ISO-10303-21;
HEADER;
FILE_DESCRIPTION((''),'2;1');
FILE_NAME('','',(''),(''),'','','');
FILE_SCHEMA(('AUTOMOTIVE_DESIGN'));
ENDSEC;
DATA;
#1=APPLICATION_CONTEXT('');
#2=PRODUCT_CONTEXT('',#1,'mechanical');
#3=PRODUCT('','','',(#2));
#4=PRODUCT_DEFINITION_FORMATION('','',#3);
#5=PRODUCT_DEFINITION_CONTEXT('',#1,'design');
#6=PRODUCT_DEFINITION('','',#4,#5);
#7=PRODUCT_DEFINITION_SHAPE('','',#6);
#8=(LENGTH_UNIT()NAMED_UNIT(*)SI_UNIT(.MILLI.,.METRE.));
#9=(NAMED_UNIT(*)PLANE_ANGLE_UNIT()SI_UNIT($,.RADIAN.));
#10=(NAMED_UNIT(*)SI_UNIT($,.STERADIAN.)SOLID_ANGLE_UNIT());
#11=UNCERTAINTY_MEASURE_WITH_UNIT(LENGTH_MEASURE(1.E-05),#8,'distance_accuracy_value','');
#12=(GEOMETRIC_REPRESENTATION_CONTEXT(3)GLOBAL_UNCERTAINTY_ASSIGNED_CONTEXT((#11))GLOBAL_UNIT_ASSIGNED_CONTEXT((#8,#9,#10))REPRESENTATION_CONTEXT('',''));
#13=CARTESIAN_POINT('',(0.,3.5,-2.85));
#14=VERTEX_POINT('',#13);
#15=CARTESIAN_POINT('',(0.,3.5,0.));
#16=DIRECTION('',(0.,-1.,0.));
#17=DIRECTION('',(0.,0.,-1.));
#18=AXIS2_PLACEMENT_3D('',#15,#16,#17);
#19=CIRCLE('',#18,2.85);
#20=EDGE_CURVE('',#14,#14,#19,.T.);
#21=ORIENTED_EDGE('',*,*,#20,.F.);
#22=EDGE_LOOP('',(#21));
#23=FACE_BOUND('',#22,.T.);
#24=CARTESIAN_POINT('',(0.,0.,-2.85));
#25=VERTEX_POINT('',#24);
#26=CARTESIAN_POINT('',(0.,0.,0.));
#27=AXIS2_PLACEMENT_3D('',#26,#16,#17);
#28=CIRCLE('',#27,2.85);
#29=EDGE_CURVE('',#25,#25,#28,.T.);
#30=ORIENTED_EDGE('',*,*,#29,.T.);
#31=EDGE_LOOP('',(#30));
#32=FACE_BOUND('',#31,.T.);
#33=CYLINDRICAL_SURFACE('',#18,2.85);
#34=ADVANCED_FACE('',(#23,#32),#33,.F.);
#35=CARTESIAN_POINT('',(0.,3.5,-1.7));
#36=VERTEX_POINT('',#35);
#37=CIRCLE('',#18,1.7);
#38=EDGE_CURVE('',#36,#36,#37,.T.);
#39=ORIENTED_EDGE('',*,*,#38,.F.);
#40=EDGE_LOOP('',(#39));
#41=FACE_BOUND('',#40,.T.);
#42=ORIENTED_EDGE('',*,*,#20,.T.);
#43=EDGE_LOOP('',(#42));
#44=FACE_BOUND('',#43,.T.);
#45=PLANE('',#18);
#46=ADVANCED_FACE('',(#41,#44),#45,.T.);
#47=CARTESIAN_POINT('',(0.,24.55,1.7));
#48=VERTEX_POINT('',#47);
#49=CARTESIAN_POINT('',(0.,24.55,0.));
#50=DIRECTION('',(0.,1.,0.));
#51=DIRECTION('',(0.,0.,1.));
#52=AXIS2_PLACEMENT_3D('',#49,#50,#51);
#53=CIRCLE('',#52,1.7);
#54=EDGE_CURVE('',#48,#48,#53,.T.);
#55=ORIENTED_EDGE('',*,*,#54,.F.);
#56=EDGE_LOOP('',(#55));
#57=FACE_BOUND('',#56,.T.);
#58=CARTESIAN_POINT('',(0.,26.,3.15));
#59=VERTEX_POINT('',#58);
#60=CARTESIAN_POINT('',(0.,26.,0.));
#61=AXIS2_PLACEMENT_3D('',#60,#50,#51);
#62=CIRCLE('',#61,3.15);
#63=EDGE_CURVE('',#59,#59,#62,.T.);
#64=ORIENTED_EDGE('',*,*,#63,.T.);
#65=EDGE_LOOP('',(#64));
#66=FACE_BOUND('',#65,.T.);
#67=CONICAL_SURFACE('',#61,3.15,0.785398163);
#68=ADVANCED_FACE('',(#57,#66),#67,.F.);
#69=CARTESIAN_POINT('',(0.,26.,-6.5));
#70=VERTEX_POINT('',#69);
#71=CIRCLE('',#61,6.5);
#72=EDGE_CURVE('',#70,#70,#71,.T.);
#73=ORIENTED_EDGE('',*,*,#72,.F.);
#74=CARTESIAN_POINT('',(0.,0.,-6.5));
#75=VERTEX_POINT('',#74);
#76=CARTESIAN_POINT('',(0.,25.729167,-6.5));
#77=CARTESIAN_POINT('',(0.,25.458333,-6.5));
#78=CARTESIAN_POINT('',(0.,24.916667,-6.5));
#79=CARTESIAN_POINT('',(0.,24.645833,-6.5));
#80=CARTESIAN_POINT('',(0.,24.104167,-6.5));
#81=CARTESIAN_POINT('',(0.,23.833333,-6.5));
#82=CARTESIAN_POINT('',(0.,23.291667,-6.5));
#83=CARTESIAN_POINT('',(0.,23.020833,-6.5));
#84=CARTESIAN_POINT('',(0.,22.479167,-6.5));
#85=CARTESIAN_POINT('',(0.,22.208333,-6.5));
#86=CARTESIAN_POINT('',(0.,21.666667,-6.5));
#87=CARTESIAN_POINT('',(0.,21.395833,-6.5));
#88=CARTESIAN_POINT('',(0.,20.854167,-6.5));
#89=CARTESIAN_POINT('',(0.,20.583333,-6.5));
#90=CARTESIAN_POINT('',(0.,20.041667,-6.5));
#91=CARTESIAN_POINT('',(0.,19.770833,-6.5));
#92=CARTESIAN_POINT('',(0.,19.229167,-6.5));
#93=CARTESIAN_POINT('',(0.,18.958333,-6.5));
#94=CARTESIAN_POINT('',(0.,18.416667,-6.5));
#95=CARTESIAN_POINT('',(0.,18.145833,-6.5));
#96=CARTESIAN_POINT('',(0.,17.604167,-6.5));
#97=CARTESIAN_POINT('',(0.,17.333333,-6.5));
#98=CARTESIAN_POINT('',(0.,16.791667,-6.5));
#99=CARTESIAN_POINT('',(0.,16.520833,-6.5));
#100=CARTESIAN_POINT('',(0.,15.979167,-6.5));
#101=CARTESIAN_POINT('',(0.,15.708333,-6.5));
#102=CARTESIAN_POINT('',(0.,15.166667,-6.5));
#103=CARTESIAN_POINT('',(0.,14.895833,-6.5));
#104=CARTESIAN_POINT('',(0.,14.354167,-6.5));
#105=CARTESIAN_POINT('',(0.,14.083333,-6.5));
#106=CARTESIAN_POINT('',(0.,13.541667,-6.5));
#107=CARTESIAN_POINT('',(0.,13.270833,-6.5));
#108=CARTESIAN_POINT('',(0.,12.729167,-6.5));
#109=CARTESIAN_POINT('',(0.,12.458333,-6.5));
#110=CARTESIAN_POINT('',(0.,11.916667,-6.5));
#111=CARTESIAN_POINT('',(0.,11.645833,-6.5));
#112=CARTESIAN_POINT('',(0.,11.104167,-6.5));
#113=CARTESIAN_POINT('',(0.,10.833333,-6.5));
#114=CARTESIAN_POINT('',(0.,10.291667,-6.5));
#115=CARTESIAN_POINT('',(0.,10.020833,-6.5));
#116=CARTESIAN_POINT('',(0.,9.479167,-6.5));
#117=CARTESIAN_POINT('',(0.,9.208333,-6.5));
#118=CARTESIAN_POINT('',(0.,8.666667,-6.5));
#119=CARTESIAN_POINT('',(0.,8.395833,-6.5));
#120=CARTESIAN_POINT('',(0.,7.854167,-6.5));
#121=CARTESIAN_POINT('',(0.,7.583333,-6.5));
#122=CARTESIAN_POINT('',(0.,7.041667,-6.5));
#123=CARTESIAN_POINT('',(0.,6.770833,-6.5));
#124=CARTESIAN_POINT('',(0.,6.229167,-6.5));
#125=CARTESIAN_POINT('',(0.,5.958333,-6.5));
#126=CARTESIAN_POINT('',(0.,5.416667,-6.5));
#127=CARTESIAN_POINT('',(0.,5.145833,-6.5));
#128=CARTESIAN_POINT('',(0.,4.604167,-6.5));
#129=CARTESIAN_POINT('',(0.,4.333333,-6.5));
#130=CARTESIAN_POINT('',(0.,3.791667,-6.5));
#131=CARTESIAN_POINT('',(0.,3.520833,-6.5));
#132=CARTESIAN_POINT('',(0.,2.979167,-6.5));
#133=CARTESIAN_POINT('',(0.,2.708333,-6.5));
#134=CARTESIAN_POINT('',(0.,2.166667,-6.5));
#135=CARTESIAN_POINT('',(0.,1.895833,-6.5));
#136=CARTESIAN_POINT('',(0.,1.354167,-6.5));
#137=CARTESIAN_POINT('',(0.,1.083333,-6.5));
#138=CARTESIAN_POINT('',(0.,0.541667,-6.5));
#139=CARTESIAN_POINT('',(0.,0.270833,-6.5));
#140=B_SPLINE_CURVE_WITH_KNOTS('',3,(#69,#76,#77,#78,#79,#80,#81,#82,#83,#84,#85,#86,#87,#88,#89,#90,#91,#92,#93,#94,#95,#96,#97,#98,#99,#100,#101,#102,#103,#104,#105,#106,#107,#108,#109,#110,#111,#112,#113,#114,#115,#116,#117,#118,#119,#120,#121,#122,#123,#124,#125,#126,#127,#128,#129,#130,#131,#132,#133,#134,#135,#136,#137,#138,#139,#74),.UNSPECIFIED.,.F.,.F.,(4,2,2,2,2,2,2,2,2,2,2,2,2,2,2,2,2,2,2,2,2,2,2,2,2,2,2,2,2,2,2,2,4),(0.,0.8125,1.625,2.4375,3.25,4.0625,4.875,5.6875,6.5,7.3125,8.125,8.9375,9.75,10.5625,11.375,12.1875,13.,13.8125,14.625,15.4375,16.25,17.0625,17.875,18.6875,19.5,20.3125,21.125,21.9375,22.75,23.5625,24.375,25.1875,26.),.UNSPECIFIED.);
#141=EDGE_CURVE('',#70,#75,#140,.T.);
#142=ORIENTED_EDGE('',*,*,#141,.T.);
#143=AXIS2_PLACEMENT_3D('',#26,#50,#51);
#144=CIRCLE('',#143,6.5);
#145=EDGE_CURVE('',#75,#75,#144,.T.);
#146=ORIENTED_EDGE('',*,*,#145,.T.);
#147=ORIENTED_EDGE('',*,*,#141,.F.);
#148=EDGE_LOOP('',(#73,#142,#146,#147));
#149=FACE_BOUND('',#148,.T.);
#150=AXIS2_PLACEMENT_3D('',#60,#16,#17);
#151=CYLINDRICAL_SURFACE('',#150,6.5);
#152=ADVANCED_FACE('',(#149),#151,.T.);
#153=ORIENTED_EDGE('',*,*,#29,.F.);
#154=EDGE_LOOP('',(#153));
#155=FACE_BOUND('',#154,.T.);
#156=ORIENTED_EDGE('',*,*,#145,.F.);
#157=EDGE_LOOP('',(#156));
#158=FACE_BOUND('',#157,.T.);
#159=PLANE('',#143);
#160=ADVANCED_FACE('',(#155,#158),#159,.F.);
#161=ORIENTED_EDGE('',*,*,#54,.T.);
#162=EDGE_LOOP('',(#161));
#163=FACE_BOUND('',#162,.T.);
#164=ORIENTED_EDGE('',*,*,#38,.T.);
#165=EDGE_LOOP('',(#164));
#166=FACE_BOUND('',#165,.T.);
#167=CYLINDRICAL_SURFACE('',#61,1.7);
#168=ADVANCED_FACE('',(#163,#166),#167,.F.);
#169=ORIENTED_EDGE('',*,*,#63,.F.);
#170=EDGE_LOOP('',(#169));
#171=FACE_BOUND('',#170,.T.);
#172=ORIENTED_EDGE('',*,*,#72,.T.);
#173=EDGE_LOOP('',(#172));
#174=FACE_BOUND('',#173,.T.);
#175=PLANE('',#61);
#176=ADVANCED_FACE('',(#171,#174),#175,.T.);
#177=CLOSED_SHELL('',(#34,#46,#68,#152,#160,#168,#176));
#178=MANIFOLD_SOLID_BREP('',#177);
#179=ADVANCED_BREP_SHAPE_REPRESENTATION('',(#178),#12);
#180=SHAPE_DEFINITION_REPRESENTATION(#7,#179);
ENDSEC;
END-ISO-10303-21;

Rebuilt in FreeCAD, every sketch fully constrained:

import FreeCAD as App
import Part
import Sketcher
from FreeCAD import Vector
Q = App.Units.Quantity

doc = App.newDocument("Part")
body = doc.addObject("PartDesign::Body", "Body")

sketch1 = body.newObject("Sketcher::SketchObject", "Sketch")
sketch1.AttachmentSupport = (doc.getObject("XZ_Plane"), [""])
sketch1.MapMode = "FlatFace"
sketch1.addGeometry(Part.Circle(Vector(0, 0, 0), Vector(0, 0, 1), 6.5), False)
sketch1.addConstraint([
    Sketcher.Constraint("Coincident", 0, 3, -1, 1),
    Sketcher.Constraint("Diameter", 0, Q("13 mm")),
])
pad1 = body.newObject("PartDesign::Pad", "Pad")
pad1.Profile = sketch1
pad1.Length = 26
pad1.Reversed = True

sketch2 = body.newObject("Sketcher::SketchObject", "Sketch001")
sketch2.AttachmentSupport = (doc.getObject("XZ_Plane"), [""])
sketch2.MapMode = "FlatFace"
sketch2.addGeometry(Part.Circle(Vector(0, 0, 0), Vector(0, 0, 1), 2.85), False)
sketch2.addConstraint([
    Sketcher.Constraint("Coincident", 0, 3, -1, 1),
    Sketcher.Constraint("Diameter", 0, Q("5.7 mm")),
])
pocket1 = body.newObject("PartDesign::Pocket", "Pocket")
pocket1.Profile = sketch2
pocket1.Length = 3.5

sketch3 = body.newObject("Sketcher::SketchObject", "Sketch002")
sketch3.AttachmentSupport = (doc.getObject("XZ_Plane"), [""])
sketch3.MapMode = "FlatFace"
sketch3.AttachmentOffset = App.Placement(Vector(0, 0, -26), App.Rotation())
sketch3.addGeometry(Part.Circle(Vector(0, 0, 0), Vector(0, 0, 1), 1.7), False)
sketch3.addConstraint([
    Sketcher.Constraint("Coincident", 0, 3, -1, 1),
    Sketcher.Constraint("Diameter", 0, Q("3.4 mm")),
])
doc.recompute()
hole = body.newObject("PartDesign::Hole", "Hole")
hole.Profile = sketch3
hole.ThreadType = "None"
hole.Diameter = 3.4
hole.DepthType = "ThroughAll"
hole.HoleCutType = "Countersink"
hole.HoleCutDiameter = 6.3
hole.HoleCutCountersinkAngle = 90
hole.Reversed = True

doc.recompute()
